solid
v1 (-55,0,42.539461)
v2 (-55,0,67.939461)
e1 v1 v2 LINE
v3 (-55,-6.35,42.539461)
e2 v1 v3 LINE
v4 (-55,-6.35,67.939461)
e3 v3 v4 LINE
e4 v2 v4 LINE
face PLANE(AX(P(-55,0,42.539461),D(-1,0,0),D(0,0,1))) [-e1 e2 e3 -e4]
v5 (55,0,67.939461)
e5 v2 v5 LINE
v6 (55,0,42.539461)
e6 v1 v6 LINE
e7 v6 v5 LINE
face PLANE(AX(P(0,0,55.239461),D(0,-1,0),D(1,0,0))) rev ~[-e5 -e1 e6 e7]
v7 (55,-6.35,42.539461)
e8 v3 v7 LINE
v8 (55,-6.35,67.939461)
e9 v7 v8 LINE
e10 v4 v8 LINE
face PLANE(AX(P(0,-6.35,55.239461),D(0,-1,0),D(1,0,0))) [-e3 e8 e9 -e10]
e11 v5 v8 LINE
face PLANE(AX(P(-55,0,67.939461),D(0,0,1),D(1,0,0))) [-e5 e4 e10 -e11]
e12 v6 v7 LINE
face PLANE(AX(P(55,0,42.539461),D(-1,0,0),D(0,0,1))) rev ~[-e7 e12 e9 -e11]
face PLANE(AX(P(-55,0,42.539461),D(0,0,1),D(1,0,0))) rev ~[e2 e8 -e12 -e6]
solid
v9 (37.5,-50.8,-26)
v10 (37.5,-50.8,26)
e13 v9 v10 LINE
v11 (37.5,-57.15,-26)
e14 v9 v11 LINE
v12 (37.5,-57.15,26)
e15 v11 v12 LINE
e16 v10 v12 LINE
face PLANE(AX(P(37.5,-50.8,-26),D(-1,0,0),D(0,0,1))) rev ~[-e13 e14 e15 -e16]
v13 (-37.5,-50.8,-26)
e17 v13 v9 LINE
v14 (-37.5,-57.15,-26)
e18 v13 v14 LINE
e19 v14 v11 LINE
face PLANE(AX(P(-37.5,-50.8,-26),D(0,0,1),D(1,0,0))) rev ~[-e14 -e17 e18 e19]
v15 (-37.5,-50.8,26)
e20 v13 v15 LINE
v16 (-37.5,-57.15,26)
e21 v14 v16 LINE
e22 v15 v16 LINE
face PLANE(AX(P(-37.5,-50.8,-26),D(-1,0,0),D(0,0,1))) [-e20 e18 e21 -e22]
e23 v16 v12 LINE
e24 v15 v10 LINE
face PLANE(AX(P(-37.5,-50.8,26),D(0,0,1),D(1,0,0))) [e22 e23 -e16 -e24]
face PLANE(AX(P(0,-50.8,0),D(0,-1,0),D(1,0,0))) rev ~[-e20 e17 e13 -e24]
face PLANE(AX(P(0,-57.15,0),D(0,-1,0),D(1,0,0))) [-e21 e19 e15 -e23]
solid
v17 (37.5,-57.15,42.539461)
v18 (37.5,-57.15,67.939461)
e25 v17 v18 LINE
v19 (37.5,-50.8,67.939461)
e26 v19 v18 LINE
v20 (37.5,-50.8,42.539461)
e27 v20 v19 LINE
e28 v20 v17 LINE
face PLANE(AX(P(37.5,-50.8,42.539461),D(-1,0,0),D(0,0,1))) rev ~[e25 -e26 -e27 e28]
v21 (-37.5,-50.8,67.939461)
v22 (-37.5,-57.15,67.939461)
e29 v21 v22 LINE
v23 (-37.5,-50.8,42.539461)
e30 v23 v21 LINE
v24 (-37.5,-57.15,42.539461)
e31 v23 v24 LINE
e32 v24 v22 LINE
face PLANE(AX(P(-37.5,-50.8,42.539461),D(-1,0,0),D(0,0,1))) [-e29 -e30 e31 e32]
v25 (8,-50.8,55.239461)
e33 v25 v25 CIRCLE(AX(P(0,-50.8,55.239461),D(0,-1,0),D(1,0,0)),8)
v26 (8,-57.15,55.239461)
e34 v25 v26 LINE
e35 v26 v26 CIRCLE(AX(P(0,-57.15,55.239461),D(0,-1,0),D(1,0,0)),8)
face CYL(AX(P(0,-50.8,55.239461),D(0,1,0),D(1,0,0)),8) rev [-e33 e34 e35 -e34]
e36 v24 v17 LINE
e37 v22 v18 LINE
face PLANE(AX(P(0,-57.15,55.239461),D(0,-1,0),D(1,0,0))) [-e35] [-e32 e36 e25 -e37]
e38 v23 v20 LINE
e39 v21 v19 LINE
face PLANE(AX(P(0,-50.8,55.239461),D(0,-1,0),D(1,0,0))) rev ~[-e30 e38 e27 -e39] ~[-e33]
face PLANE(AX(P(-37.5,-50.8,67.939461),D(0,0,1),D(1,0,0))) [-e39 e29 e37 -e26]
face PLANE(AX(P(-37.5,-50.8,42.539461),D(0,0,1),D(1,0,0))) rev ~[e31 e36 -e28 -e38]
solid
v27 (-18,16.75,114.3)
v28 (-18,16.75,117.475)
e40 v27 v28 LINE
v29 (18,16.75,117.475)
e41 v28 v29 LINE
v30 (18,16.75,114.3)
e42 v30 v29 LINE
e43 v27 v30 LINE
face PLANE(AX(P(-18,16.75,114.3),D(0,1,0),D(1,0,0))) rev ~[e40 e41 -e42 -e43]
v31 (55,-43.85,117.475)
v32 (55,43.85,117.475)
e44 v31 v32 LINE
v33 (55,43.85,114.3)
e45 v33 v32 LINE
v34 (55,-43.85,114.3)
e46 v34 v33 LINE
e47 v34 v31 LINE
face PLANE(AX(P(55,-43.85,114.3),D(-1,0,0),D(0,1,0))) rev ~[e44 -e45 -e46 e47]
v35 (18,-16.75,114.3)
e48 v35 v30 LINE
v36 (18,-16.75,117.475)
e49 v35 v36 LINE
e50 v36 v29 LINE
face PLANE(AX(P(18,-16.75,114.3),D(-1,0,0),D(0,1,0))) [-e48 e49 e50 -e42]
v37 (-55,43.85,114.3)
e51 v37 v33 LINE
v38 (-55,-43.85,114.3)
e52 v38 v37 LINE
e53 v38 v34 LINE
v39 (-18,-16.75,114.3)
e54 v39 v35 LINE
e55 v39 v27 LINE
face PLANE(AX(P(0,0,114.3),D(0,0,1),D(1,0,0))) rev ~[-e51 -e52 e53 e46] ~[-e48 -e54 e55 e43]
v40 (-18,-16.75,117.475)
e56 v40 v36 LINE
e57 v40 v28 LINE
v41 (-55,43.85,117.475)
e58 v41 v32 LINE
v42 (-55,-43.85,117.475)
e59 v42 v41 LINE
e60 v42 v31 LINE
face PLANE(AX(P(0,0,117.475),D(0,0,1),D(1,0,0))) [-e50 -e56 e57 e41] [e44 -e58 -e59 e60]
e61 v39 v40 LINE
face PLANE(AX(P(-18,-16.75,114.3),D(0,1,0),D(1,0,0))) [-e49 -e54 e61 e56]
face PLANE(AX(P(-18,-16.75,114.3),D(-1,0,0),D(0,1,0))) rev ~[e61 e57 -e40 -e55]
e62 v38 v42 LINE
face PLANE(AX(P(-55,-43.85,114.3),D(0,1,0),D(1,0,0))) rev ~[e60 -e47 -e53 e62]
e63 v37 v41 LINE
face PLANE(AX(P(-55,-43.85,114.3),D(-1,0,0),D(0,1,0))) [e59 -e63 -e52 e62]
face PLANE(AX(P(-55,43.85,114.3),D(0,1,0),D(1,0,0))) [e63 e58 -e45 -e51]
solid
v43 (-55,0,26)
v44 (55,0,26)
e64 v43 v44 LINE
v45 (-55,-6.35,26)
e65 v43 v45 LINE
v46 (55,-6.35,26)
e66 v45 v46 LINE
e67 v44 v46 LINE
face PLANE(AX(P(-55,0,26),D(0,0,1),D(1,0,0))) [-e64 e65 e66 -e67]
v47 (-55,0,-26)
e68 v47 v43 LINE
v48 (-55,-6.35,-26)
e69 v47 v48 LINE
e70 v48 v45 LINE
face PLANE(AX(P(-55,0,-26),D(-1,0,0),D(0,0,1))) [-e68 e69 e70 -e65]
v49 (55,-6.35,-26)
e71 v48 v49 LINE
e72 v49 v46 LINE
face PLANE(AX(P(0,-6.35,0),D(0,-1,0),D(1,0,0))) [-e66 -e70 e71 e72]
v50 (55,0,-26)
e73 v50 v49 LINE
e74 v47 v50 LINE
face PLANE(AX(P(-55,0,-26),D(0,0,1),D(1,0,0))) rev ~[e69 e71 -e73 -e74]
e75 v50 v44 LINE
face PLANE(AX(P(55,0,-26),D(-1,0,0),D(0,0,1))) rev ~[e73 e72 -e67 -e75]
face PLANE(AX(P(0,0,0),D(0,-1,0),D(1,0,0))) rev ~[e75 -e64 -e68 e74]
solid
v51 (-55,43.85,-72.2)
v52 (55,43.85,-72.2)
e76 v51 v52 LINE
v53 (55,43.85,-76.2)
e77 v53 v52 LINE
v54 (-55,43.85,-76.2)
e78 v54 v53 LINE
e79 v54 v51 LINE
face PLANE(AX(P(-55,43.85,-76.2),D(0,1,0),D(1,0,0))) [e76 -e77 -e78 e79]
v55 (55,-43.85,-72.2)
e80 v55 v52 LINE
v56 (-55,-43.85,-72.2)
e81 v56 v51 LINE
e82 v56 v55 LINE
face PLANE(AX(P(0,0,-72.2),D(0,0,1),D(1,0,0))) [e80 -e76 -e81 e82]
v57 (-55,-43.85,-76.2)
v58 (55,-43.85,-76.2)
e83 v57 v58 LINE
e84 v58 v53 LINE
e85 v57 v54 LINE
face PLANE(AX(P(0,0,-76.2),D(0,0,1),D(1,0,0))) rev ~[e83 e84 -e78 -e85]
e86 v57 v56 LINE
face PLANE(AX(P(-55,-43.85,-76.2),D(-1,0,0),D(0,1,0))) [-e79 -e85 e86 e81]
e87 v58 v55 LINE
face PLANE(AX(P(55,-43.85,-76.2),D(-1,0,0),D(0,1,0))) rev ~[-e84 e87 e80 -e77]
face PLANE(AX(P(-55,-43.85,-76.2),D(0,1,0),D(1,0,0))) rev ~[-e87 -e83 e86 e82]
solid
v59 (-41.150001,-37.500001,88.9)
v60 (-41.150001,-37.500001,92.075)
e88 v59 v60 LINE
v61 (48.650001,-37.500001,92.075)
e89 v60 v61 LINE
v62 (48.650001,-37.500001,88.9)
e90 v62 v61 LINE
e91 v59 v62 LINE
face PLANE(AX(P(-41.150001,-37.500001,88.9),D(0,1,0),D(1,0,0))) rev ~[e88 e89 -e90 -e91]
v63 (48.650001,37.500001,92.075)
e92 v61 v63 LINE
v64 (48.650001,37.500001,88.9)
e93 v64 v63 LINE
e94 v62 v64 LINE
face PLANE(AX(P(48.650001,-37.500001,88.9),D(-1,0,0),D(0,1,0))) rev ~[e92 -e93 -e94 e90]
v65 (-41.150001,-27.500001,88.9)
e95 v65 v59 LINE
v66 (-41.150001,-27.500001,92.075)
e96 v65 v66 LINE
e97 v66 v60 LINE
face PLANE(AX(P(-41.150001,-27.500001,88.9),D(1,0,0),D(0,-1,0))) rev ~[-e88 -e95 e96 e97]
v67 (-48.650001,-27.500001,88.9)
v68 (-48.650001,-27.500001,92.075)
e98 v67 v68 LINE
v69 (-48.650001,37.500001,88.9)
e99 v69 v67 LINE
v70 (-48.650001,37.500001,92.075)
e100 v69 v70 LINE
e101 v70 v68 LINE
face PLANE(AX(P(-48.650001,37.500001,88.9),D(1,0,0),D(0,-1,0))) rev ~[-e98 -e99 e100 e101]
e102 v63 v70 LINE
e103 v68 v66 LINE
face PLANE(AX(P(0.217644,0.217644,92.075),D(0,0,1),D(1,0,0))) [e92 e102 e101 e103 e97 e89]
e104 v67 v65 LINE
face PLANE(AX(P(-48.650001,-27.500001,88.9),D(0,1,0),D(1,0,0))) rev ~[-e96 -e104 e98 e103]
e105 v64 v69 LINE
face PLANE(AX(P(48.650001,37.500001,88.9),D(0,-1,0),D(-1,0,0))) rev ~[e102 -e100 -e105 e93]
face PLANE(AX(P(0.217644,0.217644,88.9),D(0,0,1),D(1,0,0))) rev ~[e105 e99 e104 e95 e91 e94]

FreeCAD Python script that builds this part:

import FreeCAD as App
import Part
import Sketcher
from FreeCAD import Vector


def add_polygon(sketch, points):
    """Adds a closed chain of lines whose ends are joined by coincident constraints."""
    first, n = sketch.GeometryCount, len(points)
    for a, b in zip(points, points[1:] + points[:1]):
        sketch.addGeometry(Part.LineSegment(App.Vector(*a, 0), App.Vector(*b, 0)), False)
    for i in range(n):
        sketch.addConstraint(Sketcher.Constraint("Coincident", first + i, 2, first + (i + 1) % n, 1))

doc = App.newDocument("Part")
body = doc.addObject("PartDesign::Body", "Body")

# Sketch on XZ plane
sketch1 = body.newObject("Sketcher::SketchObject", "Sketch")
sketch1.AttachmentSupport = (doc.getObject("XZ_Plane"), [""])
sketch1.MapMode = "FlatFace"
add_polygon(sketch1, [(-55, 26), (-55, -26), (55, -26), (55, 26)])  # lines 0-3
sketch1.addConstraint([
    Sketcher.Constraint("Vertical", 0),
    Sketcher.Constraint("Horizontal", 1),
    Sketcher.Constraint("Vertical", 2),
    Sketcher.Constraint("Horizontal", 3),
    Sketcher.Constraint("Symmetric", 0, 2, 2, 2, -1, 1),
    Sketcher.Constraint("DistanceX", 1, 1, 1, 2, 110.0),
    Sketcher.Constraint("DistanceY", 0, 2, 0, 1, 52.0),
])
pad1 = body.newObject("PartDesign::Pad", "Pad")
pad1.Profile = sketch1
pad1.Length = 6.35
body2 = doc.addObject("PartDesign::Body", "Body001")

# Sketch on XZ plane
sketch2 = body2.newObject("Sketcher::SketchObject", "Sketch001")
sketch2.AttachmentSupport = (doc.getObject("XZ_Plane001"), [""])
sketch2.MapMode = "FlatFace"
sketch2.AttachmentOffset = App.Placement(Vector(0, 0, 50.8), App.Rotation())
add_polygon(sketch2, [(-37.5, 26), (-37.5, -26), (37.5, -26), (37.5, 26)])  # lines 0-3
sketch2.addConstraint([
    Sketcher.Constraint("Vertical", 0),
    Sketcher.Constraint("Horizontal", 1),
    Sketcher.Constraint("Vertical", 2),
    Sketcher.Constraint("Horizontal", 3),
    Sketcher.Constraint("Symmetric", 0, 2, 2, 2, -1, 1),
    Sketcher.Constraint("DistanceX", 1, 1, 1, 2, 75.0),
    Sketcher.Constraint("DistanceY", 0, 2, 0, 1, 52.0),
])
pad2 = body2.newObject("PartDesign::Pad", "Pad001")
pad2.Profile = sketch2
pad2.Length = 6.35
body3 = doc.addObject("PartDesign::Body", "Body002")

# Sketch on XY plane
sketch3 = body3.newObject("Sketcher::SketchObject", "Sketch002")
sketch3.AttachmentSupport = (doc.getObject("XY_Plane002"), [""])
sketch3.MapMode = "FlatFace"
sketch3.AttachmentOffset = App.Placement(Vector(0, 0, -76.2), App.Rotation())
add_polygon(sketch3, [(-55, 43.85), (-55, -43.85), (55, -43.85), (55, 43.85)])  # lines 0-3
sketch3.addConstraint([
    Sketcher.Constraint("Vertical", 0),
    Sketcher.Constraint("Horizontal", 1),
    Sketcher.Constraint("Vertical", 2),
    Sketcher.Constraint("Horizontal", 3),
    Sketcher.Constraint("Symmetric", 0, 2, 2, 2, -1, 1),
    Sketcher.Constraint("DistanceX", 1, 1, 1, 2, 110.0),
    Sketcher.Constraint("DistanceY", 0, 2, 0, 1, 87.7),
])
pad3 = body3.newObject("PartDesign::Pad", "Pad002")
pad3.Profile = sketch3
pad3.Length = 4
body4 = doc.addObject("PartDesign::Body", "Body003")

# Sketch on XZ plane
sketch4 = body4.newObject("Sketcher::SketchObject", "Sketch003")
sketch4.AttachmentSupport = (doc.getObject("XZ_Plane003"), [""])
sketch4.MapMode = "FlatFace"
add_polygon(sketch4, [(-55, 67.939461), (-55, 42.539461), (55, 42.539461), (55, 67.939461)])  # lines 0-3
sketch4.addConstraint([
    Sketcher.Constraint("Vertical", 0),
    Sketcher.Constraint("Horizontal", 1),
    Sketcher.Constraint("Vertical", 2),
    Sketcher.Constraint("Horizontal", 3),
    Sketcher.Constraint("DistanceX", 1, 1, 1, 2, 110.0),
    Sketcher.Constraint("DistanceY", 0, 2, 0, 1, 25.4),
    Sketcher.Constraint("DistanceX", 0, 2, -1, 1, 55.0),
    Sketcher.Constraint("DistanceY", -1, 1, 0, 2, 42.539461),
])
pad4 = body4.newObject("PartDesign::Pad", "Pad003")
pad4.Profile = sketch4
pad4.Length = 6.35
body5 = doc.addObject("PartDesign::Body", "Body004")

# Sketch on XZ plane
sketch5 = body5.newObject("Sketcher::SketchObject", "Sketch004")
sketch5.AttachmentSupport = (doc.getObject("XZ_Plane004"), [""])
sketch5.MapMode = "FlatFace"
sketch5.AttachmentOffset = App.Placement(Vector(0, 0, 50.8), App.Rotation())
add_polygon(sketch5, [(-37.5, 67.939461), (-37.5, 42.539461), (37.5, 42.539461), (37.5, 67.939461)])  # lines 0-3
sketch5.addGeometry(Part.Circle(Vector(0, 55.239461, 0), Vector(0, 0, 1), 8), False)  # 4
sketch5.addConstraint([
    Sketcher.Constraint("Vertical", 0),
    Sketcher.Constraint("Horizontal", 1),
    Sketcher.Constraint("Vertical", 2),
    Sketcher.Constraint("Horizontal", 3),
    Sketcher.Constraint("PointOnObject", 4, 3, -2),
    Sketcher.Constraint("Diameter", 4, 16.0),
    Sketcher.Constraint("DistanceX", 1, 1, 1, 2, 75.0),
    Sketcher.Constraint("DistanceY", 0, 2, 0, 1, 25.4),
    Sketcher.Constraint("DistanceX", 0, 2, -1, 1, 37.5),
    Sketcher.Constraint("DistanceY", 0, 2, 4, 3, 12.7),
    Sketcher.Constraint("DistanceY", -1, 1, 4, 3, 55.239461),
])
pad5 = body5.newObject("PartDesign::Pad", "Pad004")
pad5.Profile = sketch5
pad5.Length = 6.35
body6 = doc.addObject("PartDesign::Body", "Body005")

# Sketch on XY plane
sketch6 = body6.newObject("Sketcher::SketchObject", "Sketch005")
sketch6.AttachmentSupport = (doc.getObject("XY_Plane005"), [""])
sketch6.MapMode = "FlatFace"
sketch6.AttachmentOffset = App.Placement(Vector(0, 0, 88.9), App.Rotation())
add_polygon(sketch6, [(48.650001, -37.500001), (48.650001, 37.500001), (-48.650001, 37.500001), (-48.650001, -27.500001), (-41.150001, -27.500001), (-41.150001, -37.500001)])  # lines 0-5
sketch6.addConstraint([
    Sketcher.Constraint("Vertical", 0),
    Sketcher.Constraint("Horizontal", 1),
    Sketcher.Constraint("Vertical", 2),
    Sketcher.Constraint("Horizontal", 3),
    Sketcher.Constraint("Vertical", 4),
    Sketcher.Constraint("Horizontal", 5),
    Sketcher.Constraint("Symmetric", 1, 2, 5, 2, -1, 1),
    Sketcher.Constraint("DistanceY", 0, 1, 0, 2, 75.000002),
    Sketcher.Constraint("DistanceY", 2, 2, 2, 1, 65.000002),
    Sketcher.Constraint("DistanceX", 3, 1, 3, 2, 7.5),
    Sketcher.Constraint("DistanceX", -1, 1, 0, 2, 48.650001),
])
pad6 = body6.newObject("PartDesign::Pad", "Pad005")
pad6.Profile = sketch6
pad6.Length = 3.175
body7 = doc.addObject("PartDesign::Body", "Body006")

# Sketch on XY plane
sketch7 = body7.newObject("Sketcher::SketchObject", "Sketch006")
sketch7.AttachmentSupport = (doc.getObject("XY_Plane006"), [""])
sketch7.MapMode = "FlatFace"
sketch7.AttachmentOffset = App.Placement(Vector(0, 0, 114.3), App.Rotation())
add_polygon(sketch7, [(-55, 43.85), (-55, -43.85), (55, -43.85), (55, 43.85)])  # lines 0-3
add_polygon(sketch7, [(18, -16.75), (-18, -16.75), (-18, 16.75), (18, 16.75)])  # lines 4-7
sketch7.addConstraint([
    Sketcher.Constraint("Vertical", 0),
    Sketcher.Constraint("Horizontal", 1),
    Sketcher.Constraint("Vertical", 2),
    Sketcher.Constraint("Horizontal", 3),
    Sketcher.Constraint("Horizontal", 4),
    Sketcher.Constraint("Vertical", 5),
    Sketcher.Constraint("Horizontal", 6),
    Sketcher.Constraint("Vertical", 7),
    Sketcher.Constraint("Symmetric", 0, 2, 2, 2, -1, 1),
    Sketcher.Constraint("Symmetric", 4, 2, 6, 2, -1, 1),
    Sketcher.Constraint("DistanceX", 1, 1, 1, 2, 110.0),
    Sketcher.Constraint("DistanceX", 4, 2, 4, 1, 36.0),
    Sketcher.Constraint("DistanceY", 0, 2, 0, 1, 87.7),
    Sketcher.Constraint("DistanceY", 5, 1, 5, 2, 33.5),
])
pad7 = body7.newObject("PartDesign::Pad", "Pad006")
pad7.Profile = sketch7
pad7.Length = 3.175

doc.recompute()
